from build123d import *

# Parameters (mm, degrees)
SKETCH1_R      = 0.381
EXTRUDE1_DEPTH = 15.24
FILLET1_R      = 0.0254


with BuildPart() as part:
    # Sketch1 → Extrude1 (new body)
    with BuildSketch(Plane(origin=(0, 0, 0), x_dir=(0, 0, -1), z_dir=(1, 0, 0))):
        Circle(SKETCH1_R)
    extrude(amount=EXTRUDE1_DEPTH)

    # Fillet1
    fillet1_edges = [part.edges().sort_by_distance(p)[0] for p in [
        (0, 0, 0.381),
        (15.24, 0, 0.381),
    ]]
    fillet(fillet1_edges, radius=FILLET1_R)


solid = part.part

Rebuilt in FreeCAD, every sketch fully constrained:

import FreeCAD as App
import Part
import Sketcher
Q = App.Units.Quantity


def edges_at(feature, points):
    """Names of the edges that pass closest to the given points."""
    edges = feature.Shape.Edges
    near = lambda p: min(range(len(edges)), key=lambda i: edges[i].distToShape(Part.Vertex(*p))[0])
    return sorted({f"Edge{near(p) + 1}" for p in points})

doc = App.newDocument("Part")
body = doc.addObject("PartDesign::Body", "Body")

# Sketch on YZ plane
sketch1 = body.newObject("Sketcher::SketchObject", "Sketch")
sketch1.AttachmentSupport = (doc.getObject("YZ_Plane"), [""])
sketch1.MapMode = "FlatFace"
sketch1.addGeometry(Part.Circle(App.Vector(0, 0, 0), App.Vector(0, 0, 1), 0.38), False)
sketch1.addConstraint([
    Sketcher.Constraint("Coincident", 0, 3, -1, 1),
    Sketcher.Constraint("Diameter", 0, Q("0.03 in")),
])
pad1 = body.newObject("PartDesign::Pad", "Pad")
pad1.Profile = sketch1
pad1.Length = Q("0.6 in")
doc.recompute()

fillet = body.newObject("PartDesign::Fillet", "Fillet")
fillet.Base = (pad1, edges_at(pad1, [(0, 0, 0.381), (15.24, 0, 0.381)]))
fillet.Radius = Q("0.001 in")

doc.recompute()
